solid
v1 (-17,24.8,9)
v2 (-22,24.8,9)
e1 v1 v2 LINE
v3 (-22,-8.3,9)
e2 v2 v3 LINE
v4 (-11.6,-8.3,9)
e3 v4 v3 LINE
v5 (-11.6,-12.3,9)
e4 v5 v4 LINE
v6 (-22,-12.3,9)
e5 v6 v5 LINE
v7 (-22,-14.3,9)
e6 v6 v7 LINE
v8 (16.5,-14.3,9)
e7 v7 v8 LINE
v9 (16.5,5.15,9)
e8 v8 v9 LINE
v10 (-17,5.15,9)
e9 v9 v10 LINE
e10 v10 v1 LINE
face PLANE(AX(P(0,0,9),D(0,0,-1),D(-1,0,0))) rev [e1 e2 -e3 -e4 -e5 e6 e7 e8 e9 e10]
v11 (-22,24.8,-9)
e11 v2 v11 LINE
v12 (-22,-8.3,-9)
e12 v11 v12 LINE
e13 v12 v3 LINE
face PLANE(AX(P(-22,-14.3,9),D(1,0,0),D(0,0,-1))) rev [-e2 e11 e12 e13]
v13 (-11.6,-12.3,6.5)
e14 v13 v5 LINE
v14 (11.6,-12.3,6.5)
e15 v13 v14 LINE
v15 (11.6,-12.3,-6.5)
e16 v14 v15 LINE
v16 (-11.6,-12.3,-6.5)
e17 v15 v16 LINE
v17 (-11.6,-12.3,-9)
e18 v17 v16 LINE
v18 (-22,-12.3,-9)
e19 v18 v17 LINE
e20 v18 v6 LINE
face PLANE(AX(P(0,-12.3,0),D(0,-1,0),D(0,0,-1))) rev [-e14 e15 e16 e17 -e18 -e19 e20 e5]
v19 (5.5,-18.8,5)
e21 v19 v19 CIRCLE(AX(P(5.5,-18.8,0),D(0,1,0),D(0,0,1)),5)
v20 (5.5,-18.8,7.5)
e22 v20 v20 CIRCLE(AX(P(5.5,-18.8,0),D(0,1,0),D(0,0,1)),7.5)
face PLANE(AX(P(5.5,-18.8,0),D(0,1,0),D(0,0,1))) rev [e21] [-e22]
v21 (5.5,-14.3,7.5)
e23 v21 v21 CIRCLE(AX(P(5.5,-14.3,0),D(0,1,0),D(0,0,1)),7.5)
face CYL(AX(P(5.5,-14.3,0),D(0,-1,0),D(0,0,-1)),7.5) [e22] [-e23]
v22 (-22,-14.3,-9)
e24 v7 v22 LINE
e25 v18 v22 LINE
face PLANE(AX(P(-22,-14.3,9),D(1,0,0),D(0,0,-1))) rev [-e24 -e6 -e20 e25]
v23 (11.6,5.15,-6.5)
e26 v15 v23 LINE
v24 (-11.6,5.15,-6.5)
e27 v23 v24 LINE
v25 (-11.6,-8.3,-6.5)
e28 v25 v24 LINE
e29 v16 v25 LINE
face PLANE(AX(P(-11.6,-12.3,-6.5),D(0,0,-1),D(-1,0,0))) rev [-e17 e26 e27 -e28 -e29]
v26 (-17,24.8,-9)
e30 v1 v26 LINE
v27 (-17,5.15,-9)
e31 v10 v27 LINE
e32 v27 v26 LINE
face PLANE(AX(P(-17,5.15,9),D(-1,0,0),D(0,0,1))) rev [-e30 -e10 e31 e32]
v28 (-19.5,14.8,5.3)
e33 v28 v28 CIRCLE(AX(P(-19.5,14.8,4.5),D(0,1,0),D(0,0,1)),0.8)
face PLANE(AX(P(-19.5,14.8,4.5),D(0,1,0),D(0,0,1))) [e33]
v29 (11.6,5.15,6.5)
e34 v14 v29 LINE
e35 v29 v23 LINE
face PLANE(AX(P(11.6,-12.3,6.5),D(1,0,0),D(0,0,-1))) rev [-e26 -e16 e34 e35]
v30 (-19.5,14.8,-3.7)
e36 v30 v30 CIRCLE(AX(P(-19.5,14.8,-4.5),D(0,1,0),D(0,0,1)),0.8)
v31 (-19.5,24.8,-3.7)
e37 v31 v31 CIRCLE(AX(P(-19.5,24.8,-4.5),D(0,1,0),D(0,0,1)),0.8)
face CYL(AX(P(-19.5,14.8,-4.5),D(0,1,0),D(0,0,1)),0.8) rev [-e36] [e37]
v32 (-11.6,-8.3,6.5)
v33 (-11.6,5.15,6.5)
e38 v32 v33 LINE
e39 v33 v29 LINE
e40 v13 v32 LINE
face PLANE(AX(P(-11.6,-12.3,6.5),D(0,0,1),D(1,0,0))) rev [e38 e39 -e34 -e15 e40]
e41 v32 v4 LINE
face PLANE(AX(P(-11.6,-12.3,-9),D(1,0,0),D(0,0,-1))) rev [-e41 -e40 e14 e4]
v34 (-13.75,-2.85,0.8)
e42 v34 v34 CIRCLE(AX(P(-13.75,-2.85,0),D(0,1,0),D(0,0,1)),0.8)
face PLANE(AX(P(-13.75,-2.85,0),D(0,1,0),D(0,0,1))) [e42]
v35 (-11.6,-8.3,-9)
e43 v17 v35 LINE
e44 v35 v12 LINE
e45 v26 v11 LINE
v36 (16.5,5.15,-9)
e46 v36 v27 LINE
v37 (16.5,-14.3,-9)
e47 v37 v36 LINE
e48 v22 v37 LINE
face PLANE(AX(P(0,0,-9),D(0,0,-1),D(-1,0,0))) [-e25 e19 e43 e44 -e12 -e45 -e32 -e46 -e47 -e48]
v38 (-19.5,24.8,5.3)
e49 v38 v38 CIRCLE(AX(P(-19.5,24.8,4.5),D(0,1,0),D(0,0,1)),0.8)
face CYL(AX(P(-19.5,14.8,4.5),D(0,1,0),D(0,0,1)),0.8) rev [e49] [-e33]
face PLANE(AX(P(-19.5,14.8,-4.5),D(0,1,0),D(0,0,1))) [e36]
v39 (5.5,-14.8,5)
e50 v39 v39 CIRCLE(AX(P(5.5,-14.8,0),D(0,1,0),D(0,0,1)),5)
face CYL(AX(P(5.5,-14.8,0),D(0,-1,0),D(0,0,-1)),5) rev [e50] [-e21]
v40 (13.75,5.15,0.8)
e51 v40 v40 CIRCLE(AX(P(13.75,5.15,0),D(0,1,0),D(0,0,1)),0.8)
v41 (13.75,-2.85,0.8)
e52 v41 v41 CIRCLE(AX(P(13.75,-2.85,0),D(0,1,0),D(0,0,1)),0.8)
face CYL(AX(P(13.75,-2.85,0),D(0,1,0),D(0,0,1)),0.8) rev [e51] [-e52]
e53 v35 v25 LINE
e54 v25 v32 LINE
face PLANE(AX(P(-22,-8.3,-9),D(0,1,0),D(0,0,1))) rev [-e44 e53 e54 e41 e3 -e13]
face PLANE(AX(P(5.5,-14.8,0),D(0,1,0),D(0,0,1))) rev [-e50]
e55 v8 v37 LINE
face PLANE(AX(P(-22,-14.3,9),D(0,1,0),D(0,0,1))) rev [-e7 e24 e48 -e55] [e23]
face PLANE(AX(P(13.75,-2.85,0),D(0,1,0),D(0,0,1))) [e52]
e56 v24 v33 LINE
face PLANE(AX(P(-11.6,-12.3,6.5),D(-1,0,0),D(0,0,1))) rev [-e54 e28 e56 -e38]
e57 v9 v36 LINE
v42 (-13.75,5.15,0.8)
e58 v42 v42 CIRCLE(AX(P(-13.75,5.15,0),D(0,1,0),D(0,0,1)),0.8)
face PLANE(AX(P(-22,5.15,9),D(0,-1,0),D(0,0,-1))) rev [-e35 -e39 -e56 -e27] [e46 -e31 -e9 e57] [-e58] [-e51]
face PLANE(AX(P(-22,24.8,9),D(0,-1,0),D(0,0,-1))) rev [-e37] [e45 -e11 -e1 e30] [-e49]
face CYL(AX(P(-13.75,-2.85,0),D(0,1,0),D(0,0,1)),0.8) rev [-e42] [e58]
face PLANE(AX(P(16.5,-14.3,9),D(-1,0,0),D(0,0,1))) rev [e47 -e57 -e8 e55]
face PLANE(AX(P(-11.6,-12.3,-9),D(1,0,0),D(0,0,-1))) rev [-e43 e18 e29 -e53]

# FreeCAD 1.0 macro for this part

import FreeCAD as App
import Part
import Sketcher

doc = App.newDocument("Part")
params = doc.addObject("Spreadsheet::Sheet", "Params")
for row, (alias, value) in enumerate([
    ("sketch1_width", "38.5 mm"),
    ("sketch1_height", "19.45 mm"),
    ("pad1_length", "18 mm"),
    ("sketch2_width", "5 mm"),
    ("sketch2_height", "19.65 mm"),
    ("pad2_length", "18 mm"),
    ("sketch3_diameter", "15 mm"),
    ("pad3_length", "4.5 mm"),
    ("sketch4_height", "13 mm"),
    ("sketch4_width", "23.2 mm"),
    ("pocket1_length", "17.45 mm"),
    ("sketch5_diameter", "10 mm"),
    ("pocket2_length", "4 mm"),
    ("sketch6_height", "4 mm"),
    ("sketch6_width", "10.4 mm"),
    ("sketch7_diameter", "1.6 mm"),
    ("pocket4_length", "8 mm"),
    ("sketch8_diameter", "1.6 mm"),
    ("pocket5_length", "8 mm"),
    ("sketch9_diameter", "1.6 mm"),
    ("pocket6_length", "10 mm"),
    ("sketch10_diameter", "1.6 mm"),
    ("pocket7_length", "10 mm"),
], start=1):
    params.set(f"A{row}", alias)
    params.set(f"B{row}", "=" + value)
    params.setAlias(f"B{row}", alias)

body = doc.addObject("PartDesign::Body", "Body")

# Sketch on XY plane
sketch1 = body.newObject("Sketcher::SketchObject", "Sketch")
sketch1.AttachmentSupport = (doc.getObject("XY_Plane"), [""])
sketch1.MapMode = "FlatFace"
sketch1.addGeometry([
    Part.LineSegment(App.Vector(-22, 5, 0), App.Vector(-22, -14, 0)),
    Part.LineSegment(App.Vector(-22, -14, 0), App.Vector(16, -14, 0)),
    Part.LineSegment(App.Vector(16, -14, 0), App.Vector(16, 5, 0)),
    Part.LineSegment(App.Vector(16, 5, 0), App.Vector(-22, 5, 0)),
], False)
sketch1.addConstraint([
    Sketcher.Constraint("Coincident", 0, 2, 1, 1),
    Sketcher.Constraint("Coincident", 1, 2, 2, 1),
    Sketcher.Constraint("Coincident", 2, 2, 3, 1),
    Sketcher.Constraint("Coincident", 3, 2, 0, 1),
    Sketcher.Constraint("Vertical", 0),
    Sketcher.Constraint("Horizontal", 1),
    Sketcher.Constraint("Vertical", 2),
    Sketcher.Constraint("Horizontal", 3),
    Sketcher.Constraint("DistanceX", 1, 1, 1, 2, 38.5),
    Sketcher.Constraint("DistanceX", 0, 2, -1, 1, 22.0),
    Sketcher.Constraint("DistanceY", 0, 2, 0, 1, 19.45),
    Sketcher.Constraint("DistanceY", 0, 2, -1, 1, 14.3),
])
sketch1.setExpression("Constraints[8]", "Params.sketch1_width")
sketch1.setExpression("Constraints[10]", "Params.sketch1_height")
pad1 = body.newObject("PartDesign::Pad", "Pad")
pad1.Profile = sketch1
pad1.setExpression("Length", "Params.pad1_length")
pad1.Midplane = True

# Sketch on XY plane
sketch2 = body.newObject("Sketcher::SketchObject", "Sketch001")
sketch2.AttachmentSupport = (doc.getObject("XY_Plane"), [""])
sketch2.MapMode = "FlatFace"
sketch2.addGeometry([
    Part.LineSegment(App.Vector(-22, 25, 0), App.Vector(-22, 5, 0)),
    Part.LineSegment(App.Vector(-22, 5, 0), App.Vector(-17, 5, 0)),
    Part.LineSegment(App.Vector(-17, 5, 0), App.Vector(-17, 25, 0)),
    Part.LineSegment(App.Vector(-17, 25, 0), App.Vector(-22, 25, 0)),
], False)
sketch2.addConstraint([
    Sketcher.Constraint("Coincident", 0, 2, 1, 1),
    Sketcher.Constraint("Coincident", 1, 2, 2, 1),
    Sketcher.Constraint("Coincident", 2, 2, 3, 1),
    Sketcher.Constraint("Coincident", 3, 2, 0, 1),
    Sketcher.Constraint("Vertical", 0),
    Sketcher.Constraint("Horizontal", 1),
    Sketcher.Constraint("Vertical", 2),
    Sketcher.Constraint("Horizontal", 3),
    Sketcher.Constraint("DistanceX", 1, 1, 1, 2, 5.0),
    Sketcher.Constraint("DistanceX", 0, 2, -1, 1, 22.0),
    Sketcher.Constraint("DistanceY", 0, 2, 0, 1, 19.65),
    Sketcher.Constraint("DistanceY", -1, 1, 2, 2, 24.8),
])
sketch2.setExpression("Constraints[8]", "Params.sketch2_width")
sketch2.setExpression("Constraints[10]", "Params.sketch2_height")
pad2 = body.newObject("PartDesign::Pad", "Pad001")
pad2.Profile = sketch2
pad2.setExpression("Length", "Params.pad2_length")
pad2.Midplane = True

# Sketch on XZ plane
sketch3 = body.newObject("Sketcher::SketchObject", "Sketch002")
sketch3.AttachmentSupport = (doc.getObject("XZ_Plane"), [""])
sketch3.MapMode = "FlatFace"
sketch3.AttachmentOffset = App.Placement(App.Vector(0, 0, 18.8), App.Rotation())
sketch3.addGeometry(Part.Circle(App.Vector(6, 0, 0), App.Vector(0, 0, 1), 8), False)
sketch3.addConstraint([
    Sketcher.Constraint("PointOnObject", 0, 3, -1),
    Sketcher.Constraint("Diameter", 0, 15.0),
    Sketcher.Constraint("DistanceX", -1, 1, 0, 3, 5.5),
])
sketch3.setExpression("Constraints[1]", "Params.sketch3_diameter")
pad3 = body.newObject("PartDesign::Pad", "Pad002")
pad3.Profile = sketch3
pad3.setExpression("Length", "Params.pad3_length")
pad3.Reversed = True

# Sketch on XZ plane
sketch4 = body.newObject("Sketcher::SketchObject", "Sketch003")
sketch4.AttachmentSupport = (doc.getObject("XZ_Plane"), [""])
sketch4.MapMode = "FlatFace"
sketch4.AttachmentOffset = App.Placement(App.Vector(0, 0, -5.15), App.Rotation())
sketch4.addGeometry([
    Part.LineSegment(App.Vector(-12, -6, 0), App.Vector(-12, 6, 0)),
    Part.LineSegment(App.Vector(-12, 6, 0), App.Vector(12, 6, 0)),
    Part.LineSegment(App.Vector(12, 6, 0), App.Vector(12, -6, 0)),
    Part.LineSegment(App.Vector(12, -6, 0), App.Vector(-12, -6, 0)),
], False)
sketch4.addConstraint([
    Sketcher.Constraint("Coincident", 0, 2, 1, 1),
    Sketcher.Constraint("Coincident", 1, 2, 2, 1),
    Sketcher.Constraint("Coincident", 2, 2, 3, 1),
    Sketcher.Constraint("Coincident", 3, 2, 0, 1),
    Sketcher.Constraint("Vertical", 0),
    Sketcher.Constraint("Horizontal", 1),
    Sketcher.Constraint("Vertical", 2),
    Sketcher.Constraint("Horizontal", 3),
    Sketcher.Constraint("Symmetric", 0, 2, 2, 2, -1, 1),
    Sketcher.Constraint("DistanceY", 0, 1, 0, 2, 13.0),
    Sketcher.Constraint("DistanceX", 1, 1, 1, 2, 23.2),
])
sketch4.setExpression("Constraints[9]", "Params.sketch4_height")
sketch4.setExpression("Constraints[10]", "Params.sketch4_width")
pocket1 = body.newObject("PartDesign::Pocket", "Pocket")
pocket1.Profile = sketch4
pocket1.setExpression("Length", "Params.pocket1_length")
pocket1.Reversed = True

# Sketch on XZ plane
sketch5 = body.newObject("Sketcher::SketchObject", "Sketch004")
sketch5.AttachmentSupport = (doc.getObject("XZ_Plane"), [""])
sketch5.MapMode = "FlatFace"
sketch5.AttachmentOffset = App.Placement(App.Vector(0, 0, 18.8), App.Rotation())
sketch5.addGeometry(Part.Circle(App.Vector(6, 0, 0), App.Vector(0, 0, 1), 5), False)
sketch5.addConstraint([
    Sketcher.Constraint("PointOnObject", 0, 3, -1),
    Sketcher.Constraint("Diameter", 0, 10.0),
    Sketcher.Constraint("DistanceX", -1, 1, 0, 3, 5.5),
])
sketch5.setExpression("Constraints[1]", "Params.sketch5_diameter")
pocket2 = body.newObject("PartDesign::Pocket", "Pocket001")
pocket2.Profile = sketch5
pocket2.setExpression("Length", "Params.pocket2_length")

# Sketch on XY plane
sketch6 = body.newObject("Sketcher::SketchObject", "Sketch005")
sketch6.AttachmentSupport = (doc.getObject("XY_Plane"), [""])
sketch6.MapMode = "FlatFace"
sketch6.addGeometry([
    Part.LineSegment(App.Vector(-22, -8.3, 0), App.Vector(-22, -12.3, 0)),
    Part.LineSegment(App.Vector(-22, -12.3, 0), App.Vector(-11.6, -12.3, 0)),
    Part.LineSegment(App.Vector(-11.6, -12.3, 0), App.Vector(-11.6, -8.3, 0)),
    Part.LineSegment(App.Vector(-11.6, -8.3, 0), App.Vector(-22, -8.3, 0)),
], False)
sketch6.addConstraint([
    Sketcher.Constraint("Coincident", 0, 2, 1, 1),
    Sketcher.Constraint("Coincident", 1, 2, 2, 1),
    Sketcher.Constraint("Coincident", 2, 2, 3, 1),
    Sketcher.Constraint("Coincident", 3, 2, 0, 1),
    Sketcher.Constraint("Vertical", 0),
    Sketcher.Constraint("Horizontal", 1),
    Sketcher.Constraint("Vertical", 2),
    Sketcher.Constraint("Horizontal", 3),
    Sketcher.Constraint("DistanceY", 0, 2, 0, 1, 4.0),
    Sketcher.Constraint("DistanceX", 1, 1, 1, 2, 10.4),
    Sketcher.Constraint("DistanceX", 0, 2, -1, 1, 22.0),
    Sketcher.Constraint("DistanceY", 0, 2, -1, 1, 12.3),
])
sketch6.setExpression("Constraints[8]", "Params.sketch6_height")
sketch6.setExpression("Constraints[9]", "Params.sketch6_width")
pocket3 = body.newObject("PartDesign::Pocket", "Pocket002")
pocket3.Profile = sketch6
pocket3.Type = "ThroughAll"
pocket3.Midplane = True

# Sketch on XZ plane
sketch7 = body.newObject("Sketcher::SketchObject", "Sketch006")
sketch7.AttachmentSupport = (doc.getObject("XZ_Plane"), [""])
sketch7.MapMode = "FlatFace"
sketch7.AttachmentOffset = App.Placement(App.Vector(0, 0, -5.15), App.Rotation())
sketch7.addGeometry(Part.Circle(App.Vector(-13.8, 0, 0), App.Vector(0, 0, 1), 0.8), False)
sketch7.addConstraint([
    Sketcher.Constraint("PointOnObject", 0, 3, -1),
    Sketcher.Constraint("Diameter", 0, 1.6),
    Sketcher.Constraint("DistanceX", 0, 3, -1, 1, 13.75),
])
sketch7.setExpression("Constraints[1]", "Params.sketch7_diameter")
pocket4 = body.newObject("PartDesign::Pocket", "Pocket003")
pocket4.Profile = sketch7
pocket4.setExpression("Length", "Params.pocket4_length")
pocket4.Reversed = True

# Sketch on XZ plane
sketch8 = body.newObject("Sketcher::SketchObject", "Sketch007")
sketch8.AttachmentSupport = (doc.getObject("XZ_Plane"), [""])
sketch8.MapMode = "FlatFace"
sketch8.AttachmentOffset = App.Placement(App.Vector(0, 0, -5.15), App.Rotation())
sketch8.addGeometry(Part.Circle(App.Vector(13.8, 0, 0), App.Vector(0, 0, 1), 0.8), False)
sketch8.addConstraint([
    Sketcher.Constraint("PointOnObject", 0, 3, -1),
    Sketcher.Constraint("Diameter", 0, 1.6),
    Sketcher.Constraint("DistanceX", -1, 1, 0, 3, 13.75),
])
sketch8.setExpression("Constraints[1]", "Params.sketch8_diameter")
pocket5 = body.newObject("PartDesign::Pocket", "Pocket004")
pocket5.Profile = sketch8
pocket5.setExpression("Length", "Params.pocket5_length")
pocket5.Reversed = True

# Sketch on XZ plane
sketch9 = body.newObject("Sketcher::SketchObject", "Sketch008")
sketch9.AttachmentSupport = (doc.getObject("XZ_Plane"), [""])
sketch9.MapMode = "FlatFace"
sketch9.AttachmentOffset = App.Placement(App.Vector(0, 0, -24.8), App.Rotation())
sketch9.addGeometry(Part.Circle(App.Vector(-19.5, 4.5, 0), App.Vector(0, 0, 1), 0.8), False)
sketch9.addConstraint([
    Sketcher.Constraint("Diameter", 0, 1.6),
    Sketcher.Constraint("DistanceX", 0, 3, -1, 1, 19.5),
    Sketcher.Constraint("DistanceY", -1, 1, 0, 3, 4.5),
])
sketch9.setExpression("Constraints[0]", "Params.sketch9_diameter")
pocket6 = body.newObject("PartDesign::Pocket", "Pocket005")
pocket6.Profile = sketch9
pocket6.setExpression("Length", "Params.pocket6_length")
pocket6.Reversed = True

# Sketch on XZ plane
sketch10 = body.newObject("Sketcher::SketchObject", "Sketch009")
sketch10.AttachmentSupport = (doc.getObject("XZ_Plane"), [""])
sketch10.MapMode = "FlatFace"
sketch10.AttachmentOffset = App.Placement(App.Vector(0, 0, -24.8), App.Rotation())
sketch10.addGeometry(Part.Circle(App.Vector(-19.5, -4.5, 0), App.Vector(0, 0, 1), 0.8), False)
sketch10.addConstraint([
    Sketcher.Constraint("Diameter", 0, 1.6),
    Sketcher.Constraint("DistanceX", 0, 3, -1, 1, 19.5),
    Sketcher.Constraint("DistanceY", 0, 3, -1, 1, 4.5),
])
sketch10.setExpression("Constraints[0]", "Params.sketch10_diameter")
pocket7 = body.newObject("PartDesign::Pocket", "Pocket006")
pocket7.Profile = sketch10
pocket7.setExpression("Length", "Params.pocket7_length")
pocket7.Reversed = True

doc.recompute()
